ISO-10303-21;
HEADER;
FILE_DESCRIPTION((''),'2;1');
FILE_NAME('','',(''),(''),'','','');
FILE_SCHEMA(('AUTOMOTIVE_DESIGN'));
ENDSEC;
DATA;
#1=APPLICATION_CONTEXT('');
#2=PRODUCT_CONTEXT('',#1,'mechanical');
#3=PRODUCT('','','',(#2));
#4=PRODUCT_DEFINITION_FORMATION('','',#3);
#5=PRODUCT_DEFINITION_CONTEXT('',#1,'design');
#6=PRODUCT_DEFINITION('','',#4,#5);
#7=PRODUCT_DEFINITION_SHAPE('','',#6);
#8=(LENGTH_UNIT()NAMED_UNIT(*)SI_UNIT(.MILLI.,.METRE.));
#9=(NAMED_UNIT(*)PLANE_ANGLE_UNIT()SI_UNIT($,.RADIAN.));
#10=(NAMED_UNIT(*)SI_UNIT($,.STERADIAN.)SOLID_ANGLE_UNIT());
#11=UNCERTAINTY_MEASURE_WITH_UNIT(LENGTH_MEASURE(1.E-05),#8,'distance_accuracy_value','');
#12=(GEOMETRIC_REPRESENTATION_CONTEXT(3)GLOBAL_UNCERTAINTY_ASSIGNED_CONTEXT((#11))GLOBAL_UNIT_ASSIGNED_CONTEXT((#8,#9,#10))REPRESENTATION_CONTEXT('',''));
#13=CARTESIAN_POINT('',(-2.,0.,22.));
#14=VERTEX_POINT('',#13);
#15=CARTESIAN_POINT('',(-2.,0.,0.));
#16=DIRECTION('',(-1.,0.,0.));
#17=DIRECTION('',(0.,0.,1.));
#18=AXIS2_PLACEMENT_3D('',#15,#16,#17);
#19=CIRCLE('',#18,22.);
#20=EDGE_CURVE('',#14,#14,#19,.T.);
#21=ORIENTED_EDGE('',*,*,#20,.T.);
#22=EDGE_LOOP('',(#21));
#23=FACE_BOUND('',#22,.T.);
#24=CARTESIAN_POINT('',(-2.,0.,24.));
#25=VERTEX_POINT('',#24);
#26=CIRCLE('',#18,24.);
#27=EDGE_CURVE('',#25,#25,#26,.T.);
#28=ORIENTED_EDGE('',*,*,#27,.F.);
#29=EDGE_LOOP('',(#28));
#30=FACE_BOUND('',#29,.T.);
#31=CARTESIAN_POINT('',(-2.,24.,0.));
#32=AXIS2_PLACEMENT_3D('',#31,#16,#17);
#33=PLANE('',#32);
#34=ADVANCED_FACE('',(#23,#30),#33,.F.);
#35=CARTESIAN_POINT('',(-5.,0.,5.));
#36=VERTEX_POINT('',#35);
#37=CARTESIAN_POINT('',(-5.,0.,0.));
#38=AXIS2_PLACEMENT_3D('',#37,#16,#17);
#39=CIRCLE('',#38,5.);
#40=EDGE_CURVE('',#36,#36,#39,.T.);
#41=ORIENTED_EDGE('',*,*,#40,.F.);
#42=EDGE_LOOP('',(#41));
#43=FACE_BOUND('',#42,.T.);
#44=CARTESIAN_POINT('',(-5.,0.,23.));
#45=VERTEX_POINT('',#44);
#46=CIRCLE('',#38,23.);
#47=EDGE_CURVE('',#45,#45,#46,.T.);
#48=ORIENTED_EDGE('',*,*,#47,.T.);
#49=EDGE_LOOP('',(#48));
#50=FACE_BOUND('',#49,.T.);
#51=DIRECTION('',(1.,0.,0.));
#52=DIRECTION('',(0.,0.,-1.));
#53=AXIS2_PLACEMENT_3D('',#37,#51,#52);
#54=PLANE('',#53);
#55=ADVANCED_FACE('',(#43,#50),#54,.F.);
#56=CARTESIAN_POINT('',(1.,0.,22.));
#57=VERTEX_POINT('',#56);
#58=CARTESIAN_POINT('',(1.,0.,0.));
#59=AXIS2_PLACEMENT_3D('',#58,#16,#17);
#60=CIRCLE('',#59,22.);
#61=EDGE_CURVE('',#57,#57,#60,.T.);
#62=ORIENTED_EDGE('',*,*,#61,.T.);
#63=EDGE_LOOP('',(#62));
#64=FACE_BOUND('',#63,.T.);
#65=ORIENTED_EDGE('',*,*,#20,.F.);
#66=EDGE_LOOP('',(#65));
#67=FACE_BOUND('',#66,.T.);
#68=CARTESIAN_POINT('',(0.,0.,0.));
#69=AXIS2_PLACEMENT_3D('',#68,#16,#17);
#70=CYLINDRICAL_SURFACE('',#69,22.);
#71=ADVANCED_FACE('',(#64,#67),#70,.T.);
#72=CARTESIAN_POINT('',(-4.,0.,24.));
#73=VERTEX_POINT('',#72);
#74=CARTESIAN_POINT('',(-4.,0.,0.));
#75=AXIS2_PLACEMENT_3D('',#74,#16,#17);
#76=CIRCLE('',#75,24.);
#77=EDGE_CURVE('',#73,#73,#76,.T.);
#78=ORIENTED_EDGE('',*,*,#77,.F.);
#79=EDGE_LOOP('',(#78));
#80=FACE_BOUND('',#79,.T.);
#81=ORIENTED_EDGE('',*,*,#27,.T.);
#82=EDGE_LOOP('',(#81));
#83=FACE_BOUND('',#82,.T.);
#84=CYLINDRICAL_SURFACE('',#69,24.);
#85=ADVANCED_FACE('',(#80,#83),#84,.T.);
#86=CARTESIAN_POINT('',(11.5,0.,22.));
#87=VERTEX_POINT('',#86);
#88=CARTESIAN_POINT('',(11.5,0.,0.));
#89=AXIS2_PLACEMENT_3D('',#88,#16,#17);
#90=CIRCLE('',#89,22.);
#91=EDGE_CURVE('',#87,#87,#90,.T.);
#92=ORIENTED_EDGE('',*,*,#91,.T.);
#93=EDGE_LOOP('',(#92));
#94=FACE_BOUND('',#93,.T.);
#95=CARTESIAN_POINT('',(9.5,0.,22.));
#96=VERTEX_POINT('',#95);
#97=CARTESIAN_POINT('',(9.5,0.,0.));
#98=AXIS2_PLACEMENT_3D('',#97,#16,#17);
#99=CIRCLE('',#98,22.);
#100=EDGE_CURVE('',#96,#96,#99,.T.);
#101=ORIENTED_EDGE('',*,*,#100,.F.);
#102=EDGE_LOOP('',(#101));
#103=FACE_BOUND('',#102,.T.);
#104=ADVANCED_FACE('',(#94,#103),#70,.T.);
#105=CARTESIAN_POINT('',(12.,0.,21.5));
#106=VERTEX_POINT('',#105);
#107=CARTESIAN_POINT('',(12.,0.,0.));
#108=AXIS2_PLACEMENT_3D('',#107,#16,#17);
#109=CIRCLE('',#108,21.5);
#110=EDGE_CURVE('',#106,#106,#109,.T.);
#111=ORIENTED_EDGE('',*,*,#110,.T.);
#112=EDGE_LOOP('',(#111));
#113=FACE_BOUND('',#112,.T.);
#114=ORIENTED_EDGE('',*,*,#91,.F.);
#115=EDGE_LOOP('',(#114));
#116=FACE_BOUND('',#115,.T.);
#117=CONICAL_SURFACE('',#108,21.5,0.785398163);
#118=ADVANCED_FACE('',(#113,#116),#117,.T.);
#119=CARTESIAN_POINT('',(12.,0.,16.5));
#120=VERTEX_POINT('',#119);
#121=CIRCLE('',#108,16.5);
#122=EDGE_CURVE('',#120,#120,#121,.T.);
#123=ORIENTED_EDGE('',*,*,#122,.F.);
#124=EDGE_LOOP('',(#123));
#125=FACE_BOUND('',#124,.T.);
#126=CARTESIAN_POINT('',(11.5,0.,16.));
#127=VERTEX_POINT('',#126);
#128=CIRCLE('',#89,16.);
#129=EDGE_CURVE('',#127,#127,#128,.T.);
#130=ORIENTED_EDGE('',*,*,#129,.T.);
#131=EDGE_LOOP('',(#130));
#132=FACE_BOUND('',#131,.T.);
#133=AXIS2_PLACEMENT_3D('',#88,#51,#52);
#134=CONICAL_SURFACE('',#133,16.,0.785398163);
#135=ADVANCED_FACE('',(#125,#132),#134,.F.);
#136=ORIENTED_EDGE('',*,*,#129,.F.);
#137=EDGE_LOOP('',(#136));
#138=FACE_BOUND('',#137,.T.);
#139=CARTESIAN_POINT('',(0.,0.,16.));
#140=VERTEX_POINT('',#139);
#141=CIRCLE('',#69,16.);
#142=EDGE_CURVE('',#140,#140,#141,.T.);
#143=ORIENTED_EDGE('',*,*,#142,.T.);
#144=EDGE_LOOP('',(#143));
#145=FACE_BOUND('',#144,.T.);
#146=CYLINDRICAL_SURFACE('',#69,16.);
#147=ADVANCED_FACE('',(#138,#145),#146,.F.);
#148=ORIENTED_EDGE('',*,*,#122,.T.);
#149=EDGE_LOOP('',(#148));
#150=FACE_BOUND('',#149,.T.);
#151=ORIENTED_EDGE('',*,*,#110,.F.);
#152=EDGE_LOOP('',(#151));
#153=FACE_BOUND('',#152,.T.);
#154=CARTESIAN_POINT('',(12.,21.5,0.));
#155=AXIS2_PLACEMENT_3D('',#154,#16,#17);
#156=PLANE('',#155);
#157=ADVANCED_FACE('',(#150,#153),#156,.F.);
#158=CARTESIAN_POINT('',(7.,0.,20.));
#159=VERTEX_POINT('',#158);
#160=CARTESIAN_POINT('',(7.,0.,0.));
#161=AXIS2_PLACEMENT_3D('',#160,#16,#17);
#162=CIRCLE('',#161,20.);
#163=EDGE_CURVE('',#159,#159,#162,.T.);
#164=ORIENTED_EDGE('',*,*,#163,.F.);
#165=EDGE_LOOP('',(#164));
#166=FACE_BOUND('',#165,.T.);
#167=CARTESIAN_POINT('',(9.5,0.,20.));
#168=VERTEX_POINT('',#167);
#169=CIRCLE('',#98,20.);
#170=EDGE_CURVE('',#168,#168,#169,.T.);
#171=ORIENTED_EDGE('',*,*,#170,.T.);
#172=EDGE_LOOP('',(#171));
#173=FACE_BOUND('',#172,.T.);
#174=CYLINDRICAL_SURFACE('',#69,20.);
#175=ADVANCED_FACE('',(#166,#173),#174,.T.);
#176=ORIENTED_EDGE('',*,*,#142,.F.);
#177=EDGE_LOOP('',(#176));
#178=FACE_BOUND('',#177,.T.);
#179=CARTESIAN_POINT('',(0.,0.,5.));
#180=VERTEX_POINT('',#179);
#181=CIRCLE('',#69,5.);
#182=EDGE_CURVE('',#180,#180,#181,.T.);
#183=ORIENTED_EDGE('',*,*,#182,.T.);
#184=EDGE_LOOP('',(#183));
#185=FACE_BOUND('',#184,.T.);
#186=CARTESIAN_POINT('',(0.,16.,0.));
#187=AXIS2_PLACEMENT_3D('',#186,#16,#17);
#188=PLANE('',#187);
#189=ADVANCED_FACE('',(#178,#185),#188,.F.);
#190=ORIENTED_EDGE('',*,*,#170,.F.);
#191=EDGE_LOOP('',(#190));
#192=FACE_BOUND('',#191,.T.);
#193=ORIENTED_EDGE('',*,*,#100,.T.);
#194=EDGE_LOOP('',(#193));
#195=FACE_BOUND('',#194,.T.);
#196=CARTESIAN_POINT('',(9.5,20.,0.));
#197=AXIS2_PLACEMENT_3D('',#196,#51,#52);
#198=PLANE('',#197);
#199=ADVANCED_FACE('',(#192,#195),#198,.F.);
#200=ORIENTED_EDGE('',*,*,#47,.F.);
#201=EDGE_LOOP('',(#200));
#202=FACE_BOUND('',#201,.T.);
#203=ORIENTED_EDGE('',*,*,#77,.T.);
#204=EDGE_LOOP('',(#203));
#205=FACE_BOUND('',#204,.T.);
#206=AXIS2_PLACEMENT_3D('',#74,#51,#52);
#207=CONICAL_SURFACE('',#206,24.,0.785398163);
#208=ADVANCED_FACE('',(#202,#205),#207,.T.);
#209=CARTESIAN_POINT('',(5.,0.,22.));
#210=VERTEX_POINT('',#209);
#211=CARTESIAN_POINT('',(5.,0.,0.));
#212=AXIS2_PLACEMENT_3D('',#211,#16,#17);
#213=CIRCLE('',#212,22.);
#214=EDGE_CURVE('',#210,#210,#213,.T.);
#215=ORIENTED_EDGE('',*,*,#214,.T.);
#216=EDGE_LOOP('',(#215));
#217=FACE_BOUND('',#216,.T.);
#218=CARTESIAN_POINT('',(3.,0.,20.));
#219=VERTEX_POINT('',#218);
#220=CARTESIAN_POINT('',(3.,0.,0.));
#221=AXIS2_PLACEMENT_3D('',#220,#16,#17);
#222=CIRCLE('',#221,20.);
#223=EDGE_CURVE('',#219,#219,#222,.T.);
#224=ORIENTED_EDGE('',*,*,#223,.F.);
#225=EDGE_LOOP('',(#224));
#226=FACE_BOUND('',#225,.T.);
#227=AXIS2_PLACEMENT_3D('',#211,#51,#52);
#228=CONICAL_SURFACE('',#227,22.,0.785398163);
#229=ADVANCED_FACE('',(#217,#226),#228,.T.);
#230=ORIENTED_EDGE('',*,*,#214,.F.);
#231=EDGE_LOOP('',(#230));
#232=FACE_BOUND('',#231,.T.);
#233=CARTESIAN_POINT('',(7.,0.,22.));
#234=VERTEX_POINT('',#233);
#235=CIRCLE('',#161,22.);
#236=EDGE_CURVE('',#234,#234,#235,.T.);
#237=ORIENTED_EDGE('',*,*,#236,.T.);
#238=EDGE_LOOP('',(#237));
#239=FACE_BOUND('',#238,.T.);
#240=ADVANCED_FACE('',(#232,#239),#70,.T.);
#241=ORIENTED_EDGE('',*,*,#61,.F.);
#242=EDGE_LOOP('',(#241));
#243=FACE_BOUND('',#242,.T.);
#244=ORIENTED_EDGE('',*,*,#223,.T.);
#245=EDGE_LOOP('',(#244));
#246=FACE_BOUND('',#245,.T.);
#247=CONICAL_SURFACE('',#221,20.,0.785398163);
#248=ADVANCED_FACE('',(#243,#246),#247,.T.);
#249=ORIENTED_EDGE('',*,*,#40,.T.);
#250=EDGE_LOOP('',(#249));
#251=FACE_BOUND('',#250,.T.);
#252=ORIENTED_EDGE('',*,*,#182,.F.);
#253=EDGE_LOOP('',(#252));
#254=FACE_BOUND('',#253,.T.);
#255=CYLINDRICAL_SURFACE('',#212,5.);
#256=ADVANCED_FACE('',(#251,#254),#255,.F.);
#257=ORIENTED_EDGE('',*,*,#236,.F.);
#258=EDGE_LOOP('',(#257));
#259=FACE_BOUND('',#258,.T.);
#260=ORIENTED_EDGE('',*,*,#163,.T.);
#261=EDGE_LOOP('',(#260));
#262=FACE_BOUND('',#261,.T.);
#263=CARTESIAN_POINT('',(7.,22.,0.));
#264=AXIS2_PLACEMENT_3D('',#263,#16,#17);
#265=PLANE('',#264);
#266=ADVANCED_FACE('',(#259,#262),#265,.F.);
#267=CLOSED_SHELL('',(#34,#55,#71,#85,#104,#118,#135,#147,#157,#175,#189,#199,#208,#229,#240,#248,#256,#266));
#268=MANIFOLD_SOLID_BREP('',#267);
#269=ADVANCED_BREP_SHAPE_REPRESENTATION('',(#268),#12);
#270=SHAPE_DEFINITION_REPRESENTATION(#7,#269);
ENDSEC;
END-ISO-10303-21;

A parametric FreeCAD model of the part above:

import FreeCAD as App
import Part
import Sketcher
from FreeCAD import Vector
Q = App.Units.Quantity

doc = App.newDocument("Part")
params = doc.addObject("Spreadsheet::Sheet", "Params")
for row, (alias, value) in enumerate([
    ("sketch1_width", "5 mm"),
    ("sketch1_width2", "2 mm"),
    ("sketch1_width3", "3 mm"),
    ("sketch1_height", "23 mm"),
    ("sketch1_height2", "16 mm"),
    ("revolution_angle", "360 deg"),
    ("sketch2_diameter", "10 mm"),
    ("pocket1_length", "10 mm"),
], start=1):
    params.set(f"A{row}", alias)
    params.set(f"B{row}", "=" + value)
    params.setAlias(f"B{row}", alias)

body = doc.addObject("PartDesign::Body", "Body")

sketch1 = body.newObject("Sketcher::SketchObject", "Sketch")
sketch1.AttachmentSupport = (doc.getObject("XY_Plane"), [""])
sketch1.MapMode = "FlatFace"
sketch1.addGeometry([
    Part.LineSegment(Vector(-5, 23, 0), Vector(-5, 0, 0)),
    Part.LineSegment(Vector(-5, 0, 0), Vector(0, 0, 0)),
    Part.LineSegment(Vector(0, 0, 0), Vector(0, 16, 0)),
    Part.LineSegment(Vector(0, 16, 0), Vector(11.5, 16, 0)),
    Part.LineSegment(Vector(11.5, 16, 0), Vector(12, 16.5, 0)),
    Part.LineSegment(Vector(12, 16.5, 0), Vector(12, 21.5, 0)),
    Part.LineSegment(Vector(12, 21.5, 0), Vector(11.5, 22, 0)),
    Part.LineSegment(Vector(11.5, 22, 0), Vector(9.5, 22, 0)),
    Part.LineSegment(Vector(9.5, 22, 0), Vector(9.5, 20, 0)),
    Part.LineSegment(Vector(9.5, 20, 0), Vector(7, 20, 0)),
    Part.LineSegment(Vector(7, 20, 0), Vector(7, 22, 0)),
    Part.LineSegment(Vector(7, 22, 0), Vector(5, 22, 0)),
    Part.LineSegment(Vector(5, 22, 0), Vector(3, 20, 0)),
    Part.LineSegment(Vector(3, 20, 0), Vector(1, 22, 0)),
    Part.LineSegment(Vector(1, 22, 0), Vector(-2, 22, 0)),
    Part.LineSegment(Vector(-2, 22, 0), Vector(-2, 24, 0)),
    Part.LineSegment(Vector(-2, 24, 0), Vector(-4, 24, 0)),
    Part.LineSegment(Vector(-4, 24, 0), Vector(-5, 23, 0)),
], False)
sketch1.addConstraint([
    Sketcher.Constraint("Coincident", 0, 2, 1, 1),
    Sketcher.Constraint("Coincident", 1, 2, 2, 1),
    Sketcher.Constraint("Coincident", 2, 2, 3, 1),
    Sketcher.Constraint("Coincident", 3, 2, 4, 1),
    Sketcher.Constraint("Coincident", 4, 2, 5, 1),
    Sketcher.Constraint("Coincident", 5, 2, 6, 1),
    Sketcher.Constraint("Coincident", 6, 2, 7, 1),
    Sketcher.Constraint("Coincident", 7, 2, 8, 1),
    Sketcher.Constraint("Coincident", 8, 2, 9, 1),
    Sketcher.Constraint("Coincident", 9, 2, 10, 1),
    Sketcher.Constraint("Coincident", 10, 2, 11, 1),
    Sketcher.Constraint("Coincident", 11, 2, 12, 1),
    Sketcher.Constraint("Coincident", 12, 2, 13, 1),
    Sketcher.Constraint("Coincident", 13, 2, 14, 1),
    Sketcher.Constraint("Coincident", 14, 2, 15, 1),
    Sketcher.Constraint("Coincident", 15, 2, 16, 1),
    Sketcher.Constraint("Coincident", 16, 2, 17, 1),
    Sketcher.Constraint("Coincident", 17, 2, 0, 1),
    Sketcher.Constraint("Vertical", 0),
    Sketcher.Constraint("Horizontal", 1),
    Sketcher.Constraint("Vertical", 2),
    Sketcher.Constraint("Horizontal", 3),
    Sketcher.Constraint("Vertical", 5),
    Sketcher.Constraint("Horizontal", 7),
    Sketcher.Constraint("Vertical", 8),
    Sketcher.Constraint("Horizontal", 9),
    Sketcher.Constraint("Vertical", 10),
    Sketcher.Constraint("Horizontal", 11),
    Sketcher.Constraint("Horizontal", 14),
    Sketcher.Constraint("Vertical", 15),
    Sketcher.Constraint("Horizontal", 16),
    Sketcher.Constraint("Coincident", 1, 2, -1, 1),
    Sketcher.Constraint("Perpendicular", 4, 6),
    Sketcher.Constraint("Perpendicular", 6, 12),
    Sketcher.Constraint("Perpendicular", 12, 13),
    Sketcher.Constraint("Perpendicular", 13, 17),
    Sketcher.Constraint("Horizontal", 7, 2, 10, 2),
    Sketcher.Constraint("Horizontal", 9, 2, 12, 2),
    Sketcher.Constraint("Horizontal", 11, 2, 13, 2),
    Sketcher.Constraint("Vertical", 3, 2, 6, 2),
    Sketcher.Constraint("Equal", 7, 11),
    Sketcher.Constraint("Equal", 11, 16),
    Sketcher.Constraint("Equal", 1, 5),
    Sketcher.Constraint("Equal", 16, 8),
    Sketcher.Constraint("Equal", 10, 15),
    Sketcher.Constraint("Equal", 4, 6),
    Sketcher.Constraint("DistanceX", 1, 1, 1, 2, Q("5 mm")),
    Sketcher.Constraint("DistanceX", 7, 2, 7, 1, Q("2 mm")),
    Sketcher.Constraint("DistanceX", 14, 2, 14, 1, Q("3 mm")),
    Sketcher.Constraint("DistanceY", 0, 2, 0, 1, Q("23 mm")),
    Sketcher.Constraint("DistanceY", 2, 1, 2, 2, Q("16 mm")),
    Sketcher.Constraint("DistanceX", 3, 1, 3, 2, Q("11.5 mm")),
    Sketcher.Constraint("DistanceX", 9, 2, 9, 1, Q("2.5 mm")),
])
sketch1.setExpression("Constraints[46]", "Params.sketch1_width")
sketch1.setExpression("Constraints[47]", "Params.sketch1_width2")
sketch1.setExpression("Constraints[48]", "Params.sketch1_width3")
sketch1.setExpression("Constraints[49]", "Params.sketch1_height")
sketch1.setExpression("Constraints[50]", "Params.sketch1_height2")
revolution = body.newObject("PartDesign::Revolution", "Revolution")
revolution.Profile = sketch1
revolution.ReferenceAxis = (sketch1, ["H_Axis"])
revolution.setExpression("Angle", "Params.revolution_angle")

sketch2 = body.newObject("Sketcher::SketchObject", "Sketch001")
sketch2.AttachmentSupport = (doc.getObject("YZ_Plane"), [""])
sketch2.MapMode = "FlatFace"
sketch2.AttachmentOffset = App.Placement(Vector(0, 0, -5), App.Rotation())
sketch2.addGeometry(Part.Circle(Vector(0, 0, 0), Vector(0, 0, 1), 5), False)
sketch2.addConstraint([
    Sketcher.Constraint("Coincident", 0, 3, -1, 1),
    Sketcher.Constraint("Diameter", 0, Q("10 mm")),
])
sketch2.setExpression("Constraints[1]", "Params.sketch2_diameter")
pocket1 = body.newObject("PartDesign::Pocket", "Pocket")
pocket1.Profile = sketch2
pocket1.setExpression("Length", "Params.pocket1_length")
pocket1.Reversed = True

doc.recompute()
